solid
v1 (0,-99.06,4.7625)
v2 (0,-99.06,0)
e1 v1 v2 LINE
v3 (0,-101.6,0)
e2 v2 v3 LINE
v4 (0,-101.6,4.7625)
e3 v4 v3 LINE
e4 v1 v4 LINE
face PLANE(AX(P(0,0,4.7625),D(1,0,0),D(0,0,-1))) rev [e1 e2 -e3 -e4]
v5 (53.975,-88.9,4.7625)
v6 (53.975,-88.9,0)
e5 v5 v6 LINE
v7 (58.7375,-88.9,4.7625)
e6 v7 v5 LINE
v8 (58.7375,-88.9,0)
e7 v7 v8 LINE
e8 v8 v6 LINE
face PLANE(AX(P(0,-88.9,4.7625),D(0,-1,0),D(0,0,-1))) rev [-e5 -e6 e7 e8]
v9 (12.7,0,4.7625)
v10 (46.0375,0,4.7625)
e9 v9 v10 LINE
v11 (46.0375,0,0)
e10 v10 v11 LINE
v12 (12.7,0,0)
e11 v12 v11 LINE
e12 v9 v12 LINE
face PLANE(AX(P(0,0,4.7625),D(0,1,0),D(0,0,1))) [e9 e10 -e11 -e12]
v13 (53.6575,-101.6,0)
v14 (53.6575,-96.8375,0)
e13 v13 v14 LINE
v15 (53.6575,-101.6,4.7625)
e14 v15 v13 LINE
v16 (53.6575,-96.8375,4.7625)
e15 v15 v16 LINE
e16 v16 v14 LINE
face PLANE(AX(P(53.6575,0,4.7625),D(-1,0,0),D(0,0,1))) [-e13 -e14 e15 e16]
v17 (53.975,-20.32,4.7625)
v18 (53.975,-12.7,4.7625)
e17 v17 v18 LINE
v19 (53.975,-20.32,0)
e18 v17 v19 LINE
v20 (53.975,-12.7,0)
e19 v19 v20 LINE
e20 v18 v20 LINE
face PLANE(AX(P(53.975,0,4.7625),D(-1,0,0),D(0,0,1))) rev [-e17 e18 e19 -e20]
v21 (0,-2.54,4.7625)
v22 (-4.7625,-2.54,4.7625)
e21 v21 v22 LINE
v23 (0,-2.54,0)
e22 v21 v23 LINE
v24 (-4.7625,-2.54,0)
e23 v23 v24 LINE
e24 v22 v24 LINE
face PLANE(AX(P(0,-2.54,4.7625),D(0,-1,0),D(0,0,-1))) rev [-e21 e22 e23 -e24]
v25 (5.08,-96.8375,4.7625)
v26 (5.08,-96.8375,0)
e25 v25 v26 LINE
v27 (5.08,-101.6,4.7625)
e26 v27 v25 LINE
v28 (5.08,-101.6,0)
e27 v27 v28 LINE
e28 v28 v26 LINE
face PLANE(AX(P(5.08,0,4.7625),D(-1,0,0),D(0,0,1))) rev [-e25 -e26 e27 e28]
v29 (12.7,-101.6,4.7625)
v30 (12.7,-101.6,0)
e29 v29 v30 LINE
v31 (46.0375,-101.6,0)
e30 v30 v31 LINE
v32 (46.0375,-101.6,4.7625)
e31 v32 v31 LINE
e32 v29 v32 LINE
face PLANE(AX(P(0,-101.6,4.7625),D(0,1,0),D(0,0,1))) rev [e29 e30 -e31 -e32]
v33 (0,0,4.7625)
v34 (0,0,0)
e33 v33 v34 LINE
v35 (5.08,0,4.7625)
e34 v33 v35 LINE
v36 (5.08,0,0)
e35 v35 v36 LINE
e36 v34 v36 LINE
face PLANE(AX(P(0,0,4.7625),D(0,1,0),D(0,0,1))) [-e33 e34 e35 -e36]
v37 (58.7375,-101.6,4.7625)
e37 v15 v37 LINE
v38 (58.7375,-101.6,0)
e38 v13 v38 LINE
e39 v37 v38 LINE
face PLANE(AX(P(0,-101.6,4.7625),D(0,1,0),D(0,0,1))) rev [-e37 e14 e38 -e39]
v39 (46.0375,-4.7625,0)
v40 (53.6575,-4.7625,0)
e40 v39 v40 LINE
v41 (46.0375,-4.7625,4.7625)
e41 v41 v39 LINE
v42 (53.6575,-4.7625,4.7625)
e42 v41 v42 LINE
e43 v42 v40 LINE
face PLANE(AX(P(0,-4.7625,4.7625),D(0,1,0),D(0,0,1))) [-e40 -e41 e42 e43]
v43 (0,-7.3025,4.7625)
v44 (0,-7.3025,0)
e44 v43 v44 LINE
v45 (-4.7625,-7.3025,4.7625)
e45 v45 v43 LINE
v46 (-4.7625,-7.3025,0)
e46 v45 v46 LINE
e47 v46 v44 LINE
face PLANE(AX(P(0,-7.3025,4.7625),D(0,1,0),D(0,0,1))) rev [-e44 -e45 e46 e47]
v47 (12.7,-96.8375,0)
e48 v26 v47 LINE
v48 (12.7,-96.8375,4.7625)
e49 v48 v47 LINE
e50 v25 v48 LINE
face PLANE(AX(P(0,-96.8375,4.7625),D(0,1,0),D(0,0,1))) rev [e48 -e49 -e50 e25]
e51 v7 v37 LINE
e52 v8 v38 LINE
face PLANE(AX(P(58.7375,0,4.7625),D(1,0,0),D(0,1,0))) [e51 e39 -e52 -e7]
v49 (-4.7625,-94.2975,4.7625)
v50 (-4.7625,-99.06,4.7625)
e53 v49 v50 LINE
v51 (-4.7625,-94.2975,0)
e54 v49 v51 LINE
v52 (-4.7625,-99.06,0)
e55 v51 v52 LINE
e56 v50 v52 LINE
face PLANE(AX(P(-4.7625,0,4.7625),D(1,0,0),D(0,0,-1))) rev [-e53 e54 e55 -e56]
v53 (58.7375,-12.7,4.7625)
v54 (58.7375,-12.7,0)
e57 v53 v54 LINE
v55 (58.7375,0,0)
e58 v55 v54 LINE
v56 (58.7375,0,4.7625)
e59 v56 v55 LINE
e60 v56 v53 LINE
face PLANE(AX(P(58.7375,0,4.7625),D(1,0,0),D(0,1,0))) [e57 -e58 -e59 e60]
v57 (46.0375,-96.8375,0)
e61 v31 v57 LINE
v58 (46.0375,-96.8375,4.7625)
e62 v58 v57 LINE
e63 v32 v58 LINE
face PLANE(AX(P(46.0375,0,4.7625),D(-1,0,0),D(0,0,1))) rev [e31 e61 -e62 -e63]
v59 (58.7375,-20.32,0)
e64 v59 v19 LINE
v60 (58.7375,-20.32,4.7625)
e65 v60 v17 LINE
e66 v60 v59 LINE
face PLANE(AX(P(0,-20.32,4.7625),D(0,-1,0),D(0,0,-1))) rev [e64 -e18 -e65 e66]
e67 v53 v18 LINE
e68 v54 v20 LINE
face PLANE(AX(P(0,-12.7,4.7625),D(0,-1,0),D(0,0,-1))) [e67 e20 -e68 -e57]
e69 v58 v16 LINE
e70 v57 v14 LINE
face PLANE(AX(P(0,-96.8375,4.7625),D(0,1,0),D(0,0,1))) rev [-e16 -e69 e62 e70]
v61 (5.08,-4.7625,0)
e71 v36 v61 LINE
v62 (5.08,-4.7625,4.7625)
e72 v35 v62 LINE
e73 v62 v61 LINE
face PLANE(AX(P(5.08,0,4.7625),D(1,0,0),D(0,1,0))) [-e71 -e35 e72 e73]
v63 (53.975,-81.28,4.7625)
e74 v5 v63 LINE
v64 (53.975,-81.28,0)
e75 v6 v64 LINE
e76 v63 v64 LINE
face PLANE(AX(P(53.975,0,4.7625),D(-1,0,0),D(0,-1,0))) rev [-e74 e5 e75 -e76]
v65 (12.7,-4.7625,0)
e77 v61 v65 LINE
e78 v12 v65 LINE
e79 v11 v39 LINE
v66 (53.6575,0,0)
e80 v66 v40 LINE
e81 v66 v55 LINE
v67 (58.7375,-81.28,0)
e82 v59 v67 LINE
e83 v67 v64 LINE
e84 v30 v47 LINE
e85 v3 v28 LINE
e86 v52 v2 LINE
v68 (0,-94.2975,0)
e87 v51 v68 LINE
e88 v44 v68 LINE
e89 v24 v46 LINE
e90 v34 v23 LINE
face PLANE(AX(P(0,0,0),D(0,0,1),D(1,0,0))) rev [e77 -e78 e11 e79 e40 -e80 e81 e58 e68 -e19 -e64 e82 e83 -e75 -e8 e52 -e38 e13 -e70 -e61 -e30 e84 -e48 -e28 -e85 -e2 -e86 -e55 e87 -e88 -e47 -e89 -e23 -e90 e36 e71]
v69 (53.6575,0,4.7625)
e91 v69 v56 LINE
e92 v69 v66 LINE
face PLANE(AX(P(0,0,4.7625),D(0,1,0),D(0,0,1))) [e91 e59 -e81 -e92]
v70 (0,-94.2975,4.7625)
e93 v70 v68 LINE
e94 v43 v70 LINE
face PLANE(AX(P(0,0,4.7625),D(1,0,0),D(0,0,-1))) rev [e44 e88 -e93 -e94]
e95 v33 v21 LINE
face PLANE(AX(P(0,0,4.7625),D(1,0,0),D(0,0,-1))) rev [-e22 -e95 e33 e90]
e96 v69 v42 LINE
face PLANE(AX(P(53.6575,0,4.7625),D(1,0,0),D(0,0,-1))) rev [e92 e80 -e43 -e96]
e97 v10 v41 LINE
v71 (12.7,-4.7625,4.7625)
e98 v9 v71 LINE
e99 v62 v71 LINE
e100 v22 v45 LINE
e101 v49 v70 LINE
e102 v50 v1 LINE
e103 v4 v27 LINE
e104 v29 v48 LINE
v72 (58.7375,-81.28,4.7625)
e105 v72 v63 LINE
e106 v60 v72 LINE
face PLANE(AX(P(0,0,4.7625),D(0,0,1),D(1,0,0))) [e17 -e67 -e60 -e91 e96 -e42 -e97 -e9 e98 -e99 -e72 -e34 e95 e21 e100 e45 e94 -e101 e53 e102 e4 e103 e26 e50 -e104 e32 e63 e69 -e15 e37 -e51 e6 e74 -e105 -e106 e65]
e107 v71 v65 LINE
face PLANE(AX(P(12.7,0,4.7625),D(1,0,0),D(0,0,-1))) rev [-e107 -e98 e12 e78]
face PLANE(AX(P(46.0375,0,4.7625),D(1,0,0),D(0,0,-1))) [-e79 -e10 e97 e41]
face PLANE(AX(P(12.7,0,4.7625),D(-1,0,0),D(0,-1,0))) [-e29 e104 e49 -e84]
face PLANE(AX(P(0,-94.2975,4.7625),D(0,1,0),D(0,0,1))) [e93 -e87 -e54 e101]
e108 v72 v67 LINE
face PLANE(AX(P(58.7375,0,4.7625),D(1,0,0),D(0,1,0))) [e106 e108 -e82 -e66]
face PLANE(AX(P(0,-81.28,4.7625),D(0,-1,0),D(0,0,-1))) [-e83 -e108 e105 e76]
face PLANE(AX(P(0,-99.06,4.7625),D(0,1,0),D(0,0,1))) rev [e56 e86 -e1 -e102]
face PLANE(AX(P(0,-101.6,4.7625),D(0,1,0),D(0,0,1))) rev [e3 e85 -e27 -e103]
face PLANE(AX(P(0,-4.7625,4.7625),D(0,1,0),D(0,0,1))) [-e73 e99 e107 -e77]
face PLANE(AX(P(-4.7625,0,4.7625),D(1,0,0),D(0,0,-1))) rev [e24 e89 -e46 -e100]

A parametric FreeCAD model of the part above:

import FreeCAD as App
import Part
import Sketcher
from FreeCAD import Vector
Q = App.Units.Quantity

doc = App.newDocument("Part")
body = doc.addObject("PartDesign::Body", "Body")

# Sketch on XY plane
sketch1 = doc.addObject("Sketcher::SketchObject", "Sketch")
body.addObject(sketch1)
sketch1.AttachmentSupport = (doc.XY_Plane, [""])
sketch1.MapMode = "FlatFace"
sketch1.addGeometry([
    Part.LineSegment(Vector(-4.8, -94.3, 0), Vector(-4.8, -99.1, 0)),  # 0
    Part.LineSegment(Vector(-4.8, -99.1, 0), Vector(0, -99.1, 0)),  # 1
    Part.LineSegment(Vector(0, -99.1, 0), Vector(0, -101.6, 0)),  # 2
    Part.LineSegment(Vector(0, -101.6, 0), Vector(5.1, -101.6, 0)),  # 3
    Part.LineSegment(Vector(5.1, -101.6, 0), Vector(5.1, -96.8, 0)),  # 4
    Part.LineSegment(Vector(5.1, -96.8, 0), Vector(12.7, -96.8, 0)),  # 5
    Part.LineSegment(Vector(12.7, -96.8, 0), Vector(12.7, -101.6, 0)),  # 6
    Part.LineSegment(Vector(12.7, -101.6, 0), Vector(46, -101.6, 0)),  # 7
    Part.LineSegment(Vector(46, -101.6, 0), Vector(46, -96.8, 0)),  # 8
    Part.LineSegment(Vector(46, -96.8, 0), Vector(53.7, -96.8, 0)),  # 9
    Part.LineSegment(Vector(53.7, -96.8, 0), Vector(53.7, -101.6, 0)),  # 10
    Part.LineSegment(Vector(53.7, -101.6, 0), Vector(58.7, -101.6, 0)),  # 11
    Part.LineSegment(Vector(58.7, -101.6, 0), Vector(58.7, -88.9, 0)),  # 12
    Part.LineSegment(Vector(58.7, -88.9, 0), Vector(54, -88.9, 0)),  # 13
    Part.LineSegment(Vector(54, -88.9, 0), Vector(54, -81.3, 0)),  # 14
    Part.LineSegment(Vector(54, -81.3, 0), Vector(58.7, -81.3, 0)),  # 15
    Part.LineSegment(Vector(58.7, -81.3, 0), Vector(58.7, -20.3, 0)),  # 16
    Part.LineSegment(Vector(58.7, -20.3, 0), Vector(54, -20.3, 0)),  # 17
    Part.LineSegment(Vector(54, -20.3, 0), Vector(54, -12.7, 0)),  # 18
    Part.LineSegment(Vector(54, -12.7, 0), Vector(58.7, -12.7, 0)),  # 19
    Part.LineSegment(Vector(58.7, -12.7, 0), Vector(58.7, 0, 0)),  # 20
    Part.LineSegment(Vector(58.7, 0, 0), Vector(53.7, 0, 0)),  # 21
    Part.LineSegment(Vector(53.7, 0, 0), Vector(53.7, -4.8, 0)),  # 22
    Part.LineSegment(Vector(53.7, -4.8, 0), Vector(46, -4.8, 0)),  # 23
    Part.LineSegment(Vector(46, -4.8, 0), Vector(46, 0, 0)),  # 24
    Part.LineSegment(Vector(46, 0, 0), Vector(12.7, 0, 0)),  # 25
    Part.LineSegment(Vector(12.7, 0, 0), Vector(12.7, -4.8, 0)),  # 26
    Part.LineSegment(Vector(12.7, -4.8, 0), Vector(5.1, -4.8, 0)),  # 27
    Part.LineSegment(Vector(5.1, -4.8, 0), Vector(5.1, 0, 0)),  # 28
    Part.LineSegment(Vector(5.1, 0, 0), Vector(0, 0, 0)),  # 29
    Part.LineSegment(Vector(0, 0, 0), Vector(0, -2.5, 0)),  # 30
    Part.LineSegment(Vector(0, -2.5, 0), Vector(-4.8, -2.5, 0)),  # 31
    Part.LineSegment(Vector(-4.8, -2.5, 0), Vector(-4.8, -7.3, 0)),  # 32
    Part.LineSegment(Vector(-4.8, -7.3, 0), Vector(0, -7.3, 0)),  # 33
    Part.LineSegment(Vector(0, -7.3, 0), Vector(0, -94.3, 0)),  # 34
    Part.LineSegment(Vector(0, -94.3, 0), Vector(-4.8, -94.3, 0)),  # 35
], False)
sketch1.addConstraint([
    Sketcher.Constraint("Coincident", 0, 2, 1, 1),
    Sketcher.Constraint("Coincident", 1, 2, 2, 1),
    Sketcher.Constraint("Coincident", 2, 2, 3, 1),
    Sketcher.Constraint("Coincident", 3, 2, 4, 1),
    Sketcher.Constraint("Coincident", 4, 2, 5, 1),
    Sketcher.Constraint("Coincident", 5, 2, 6, 1),
    Sketcher.Constraint("Coincident", 6, 2, 7, 1),
    Sketcher.Constraint("Coincident", 7, 2, 8, 1),
    Sketcher.Constraint("Coincident", 8, 2, 9, 1),
    Sketcher.Constraint("Coincident", 9, 2, 10, 1),
    Sketcher.Constraint("Coincident", 10, 2, 11, 1),
    Sketcher.Constraint("Coincident", 11, 2, 12, 1),
    Sketcher.Constraint("Coincident", 12, 2, 13, 1),
    Sketcher.Constraint("Coincident", 13, 2, 14, 1),
    Sketcher.Constraint("Coincident", 14, 2, 15, 1),
    Sketcher.Constraint("Coincident", 15, 2, 16, 1),
    Sketcher.Constraint("Coincident", 16, 2, 17, 1),
    Sketcher.Constraint("Coincident", 17, 2, 18, 1),
    Sketcher.Constraint("Coincident", 18, 2, 19, 1),
    Sketcher.Constraint("Coincident", 19, 2, 20, 1),
    Sketcher.Constraint("Coincident", 20, 2, 21, 1),
    Sketcher.Constraint("Coincident", 21, 2, 22, 1),
    Sketcher.Constraint("Coincident", 22, 2, 23, 1),
    Sketcher.Constraint("Coincident", 23, 2, 24, 1),
    Sketcher.Constraint("Coincident", 24, 2, 25, 1),
    Sketcher.Constraint("Coincident", 25, 2, 26, 1),
    Sketcher.Constraint("Coincident", 26, 2, 27, 1),
    Sketcher.Constraint("Coincident", 27, 2, 28, 1),
    Sketcher.Constraint("Coincident", 28, 2, 29, 1),
    Sketcher.Constraint("Coincident", 29, 2, 30, 1),
    Sketcher.Constraint("Coincident", 30, 2, 31, 1),
    Sketcher.Constraint("Coincident", 31, 2, 32, 1),
    Sketcher.Constraint("Coincident", 32, 2, 33, 1),
    Sketcher.Constraint("Coincident", 33, 2, 34, 1),
    Sketcher.Constraint("Coincident", 34, 2, 35, 1),
    Sketcher.Constraint("Coincident", 35, 2, 0, 1),
    Sketcher.Constraint("Vertical", 0),
    Sketcher.Constraint("Horizontal", 1),
    Sketcher.Constraint("Vertical", 2),
    Sketcher.Constraint("Horizontal", 3),
    Sketcher.Constraint("Vertical", 4),
    Sketcher.Constraint("Horizontal", 5),
    Sketcher.Constraint("Vertical", 6),
    Sketcher.Constraint("Horizontal", 7),
    Sketcher.Constraint("Vertical", 8),
    Sketcher.Constraint("Horizontal", 9),
    Sketcher.Constraint("Vertical", 10),
    Sketcher.Constraint("Horizontal", 11),
    Sketcher.Constraint("Vertical", 12),
    Sketcher.Constraint("Horizontal", 13),
    Sketcher.Constraint("Vertical", 14),
    Sketcher.Constraint("Horizontal", 15),
    Sketcher.Constraint("Vertical", 16),
    Sketcher.Constraint("Horizontal", 17),
    Sketcher.Constraint("Vertical", 18),
    Sketcher.Constraint("Horizontal", 19),
    Sketcher.Constraint("Vertical", 20),
    Sketcher.Constraint("Horizontal", 21),
    Sketcher.Constraint("Vertical", 22),
    Sketcher.Constraint("Horizontal", 23),
    Sketcher.Constraint("Vertical", 24),
    Sketcher.Constraint("Horizontal", 25),
    Sketcher.Constraint("Vertical", 26),
    Sketcher.Constraint("Horizontal", 27),
    Sketcher.Constraint("Vertical", 28),
    Sketcher.Constraint("Horizontal", 29),
    Sketcher.Constraint("Vertical", 30),
    Sketcher.Constraint("Horizontal", 31),
    Sketcher.Constraint("Vertical", 32),
    Sketcher.Constraint("Horizontal", 33),
    Sketcher.Constraint("Vertical", 34),
    Sketcher.Constraint("Horizontal", 35),
    Sketcher.Constraint("Coincident", 29, 2, -1, 1),
    Sketcher.Constraint("PointOnObject", 1, 2, -2),
    Sketcher.Constraint("PointOnObject", 20, 2, -1),
    Sketcher.Constraint("PointOnObject", 24, 2, -1),
    Sketcher.Constraint("PointOnObject", 33, 2, -2),
    Sketcher.Constraint("Horizontal", 3, 2, 6, 2),
    Sketcher.Constraint("Horizontal", 5, 2, 8, 2),
    Sketcher.Constraint("Horizontal", 7, 2, 10, 2),
    Sketcher.Constraint("Horizontal", 23, 2, 26, 2),
    Sketcher.Constraint("Vertical", 12, 2, 15, 2),
    Sketcher.Constraint("Vertical", 14, 2, 17, 2),
    Sketcher.Constraint("Vertical", 16, 2, 19, 2),
    Sketcher.Constraint("Vertical", 10, 2, 21, 2),
    Sketcher.Constraint("Vertical", 8, 2, 23, 2),
    Sketcher.Constraint("Vertical", 6, 2, 25, 2),
    Sketcher.Constraint("Vertical", 4, 2, 27, 2),
    Sketcher.Constraint("Vertical", 0, 2, 31, 2),
    Sketcher.Constraint("Equal", 5, 9),
    Sketcher.Constraint("Equal", 3, 11),
    Sketcher.Constraint("Equal", 1, 13),
    Sketcher.Constraint("Equal", 35, 0),
    Sketcher.Constraint("Equal", 0, 4),
    Sketcher.Constraint("Equal", 27, 14),
    Sketcher.Constraint("Equal", 14, 18),
    Sketcher.Constraint("Equal", 12, 20),
    Sketcher.Constraint("Equal", 10, 22),
    Sketcher.Constraint("Equal", 2, 30),
    Sketcher.Constraint("Equal", 28, 32),
    Sketcher.Constraint("DistanceX", 3, 1, 3, 2, Q("0.2 in")),
    Sketcher.Constraint("DistanceX", 5, 1, 5, 2, Q("0.3 in")),
    Sketcher.Constraint("DistanceY", 2, 2, 2, 1, Q("0.1 in")),
    Sketcher.Constraint("DistanceY", 12, 1, 12, 2, Q("0.5 in")),
    Sketcher.Constraint("DistanceY", 16, 1, 16, 2, Q("2.4 in")),
    Sketcher.Constraint("DistanceX", 1, 1, 1, 2, Q("0.1875 in")),
    Sketcher.Constraint("DistanceX", 7, 1, 7, 2, Q("1.3125 in")),
])
pad1 = doc.addObject("PartDesign::Pad", "Pad")
body.addObject(pad1)
pad1.Profile = sketch1
pad1.Length = Q("0.1875 in")

doc.recompute()
